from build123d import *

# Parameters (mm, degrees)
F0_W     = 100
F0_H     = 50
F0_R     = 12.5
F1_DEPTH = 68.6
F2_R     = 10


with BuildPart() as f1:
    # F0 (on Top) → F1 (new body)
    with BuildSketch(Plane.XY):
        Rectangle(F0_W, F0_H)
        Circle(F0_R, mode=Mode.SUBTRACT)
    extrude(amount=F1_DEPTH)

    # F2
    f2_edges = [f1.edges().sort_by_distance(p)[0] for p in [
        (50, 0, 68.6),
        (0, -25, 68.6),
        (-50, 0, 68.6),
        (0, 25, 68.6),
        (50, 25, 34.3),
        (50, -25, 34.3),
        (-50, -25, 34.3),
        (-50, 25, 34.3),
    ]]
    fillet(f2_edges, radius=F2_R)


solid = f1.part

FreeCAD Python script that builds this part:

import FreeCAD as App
import Part
import Sketcher
Q = App.Units.Quantity


def edges_at(feature, points):
    """Names of the edges that pass closest to the given points."""
    edges = feature.Shape.Edges
    near = lambda p: min(range(len(edges)), key=lambda i: edges[i].distToShape(Part.Vertex(*p))[0])
    return sorted({f"Edge{near(p) + 1}" for p in points})


def add_polygon(sketch, points):
    """Adds a closed chain of lines whose ends are joined by coincident constraints."""
    first, n = sketch.GeometryCount, len(points)
    for a, b in zip(points, points[1:] + points[:1]):
        sketch.addGeometry(Part.LineSegment(App.Vector(*a, 0), App.Vector(*b, 0)), False)
    for i in range(n):
        sketch.addConstraint(Sketcher.Constraint("Coincident", first + i, 2, first + (i + 1) % n, 1))

doc = App.newDocument("Part")
body = doc.addObject("PartDesign::Body", "Body")

# Sketch on XY plane
sketch1 = body.newObject("Sketcher::SketchObject", "Sketch")
sketch1.AttachmentSupport = (doc.getObject("XY_Plane"), [""])
sketch1.MapMode = "FlatFace"
add_polygon(sketch1, [(-50, 25), (-50, -25), (50, -25), (50, 25)])  # lines 0-3
sketch1.addGeometry(Part.Circle(App.Vector(0, 0, 0), App.Vector(0, 0, 1), 12), False)  # 4
sketch1.addConstraint([
    Sketcher.Constraint("Vertical", 0),
    Sketcher.Constraint("Horizontal", 1),
    Sketcher.Constraint("Vertical", 2),
    Sketcher.Constraint("Horizontal", 3),
    Sketcher.Constraint("Coincident", 4, 3, -1, 1),
    Sketcher.Constraint("Symmetric", 0, 2, 2, 2, -1, 1),
    Sketcher.Constraint("Diameter", 4, Q("25 mm")),
    Sketcher.Constraint("DistanceX", 1, 1, 1, 2, Q("100 mm")),
    Sketcher.Constraint("DistanceY", 0, 2, 0, 1, Q("50 mm")),
])
pad1 = body.newObject("PartDesign::Pad", "Pad")
pad1.Profile = sketch1
pad1.Length = 68.6
doc.recompute()

fillet = body.newObject("PartDesign::Fillet", "Fillet")
fillet.Base = (pad1, edges_at(pad1, [
    (50, 0, 68.6),
    (0, -25, 68.6),
    (-50, 0, 68.6),
    (0, 25, 68.6),
    (50, 25, 34.3),
    (50, -25, 34.3),
    (-50, -25, 34.3),
    (-50, 25, 34.3),
]))
fillet.Radius = 10

doc.recompute()
